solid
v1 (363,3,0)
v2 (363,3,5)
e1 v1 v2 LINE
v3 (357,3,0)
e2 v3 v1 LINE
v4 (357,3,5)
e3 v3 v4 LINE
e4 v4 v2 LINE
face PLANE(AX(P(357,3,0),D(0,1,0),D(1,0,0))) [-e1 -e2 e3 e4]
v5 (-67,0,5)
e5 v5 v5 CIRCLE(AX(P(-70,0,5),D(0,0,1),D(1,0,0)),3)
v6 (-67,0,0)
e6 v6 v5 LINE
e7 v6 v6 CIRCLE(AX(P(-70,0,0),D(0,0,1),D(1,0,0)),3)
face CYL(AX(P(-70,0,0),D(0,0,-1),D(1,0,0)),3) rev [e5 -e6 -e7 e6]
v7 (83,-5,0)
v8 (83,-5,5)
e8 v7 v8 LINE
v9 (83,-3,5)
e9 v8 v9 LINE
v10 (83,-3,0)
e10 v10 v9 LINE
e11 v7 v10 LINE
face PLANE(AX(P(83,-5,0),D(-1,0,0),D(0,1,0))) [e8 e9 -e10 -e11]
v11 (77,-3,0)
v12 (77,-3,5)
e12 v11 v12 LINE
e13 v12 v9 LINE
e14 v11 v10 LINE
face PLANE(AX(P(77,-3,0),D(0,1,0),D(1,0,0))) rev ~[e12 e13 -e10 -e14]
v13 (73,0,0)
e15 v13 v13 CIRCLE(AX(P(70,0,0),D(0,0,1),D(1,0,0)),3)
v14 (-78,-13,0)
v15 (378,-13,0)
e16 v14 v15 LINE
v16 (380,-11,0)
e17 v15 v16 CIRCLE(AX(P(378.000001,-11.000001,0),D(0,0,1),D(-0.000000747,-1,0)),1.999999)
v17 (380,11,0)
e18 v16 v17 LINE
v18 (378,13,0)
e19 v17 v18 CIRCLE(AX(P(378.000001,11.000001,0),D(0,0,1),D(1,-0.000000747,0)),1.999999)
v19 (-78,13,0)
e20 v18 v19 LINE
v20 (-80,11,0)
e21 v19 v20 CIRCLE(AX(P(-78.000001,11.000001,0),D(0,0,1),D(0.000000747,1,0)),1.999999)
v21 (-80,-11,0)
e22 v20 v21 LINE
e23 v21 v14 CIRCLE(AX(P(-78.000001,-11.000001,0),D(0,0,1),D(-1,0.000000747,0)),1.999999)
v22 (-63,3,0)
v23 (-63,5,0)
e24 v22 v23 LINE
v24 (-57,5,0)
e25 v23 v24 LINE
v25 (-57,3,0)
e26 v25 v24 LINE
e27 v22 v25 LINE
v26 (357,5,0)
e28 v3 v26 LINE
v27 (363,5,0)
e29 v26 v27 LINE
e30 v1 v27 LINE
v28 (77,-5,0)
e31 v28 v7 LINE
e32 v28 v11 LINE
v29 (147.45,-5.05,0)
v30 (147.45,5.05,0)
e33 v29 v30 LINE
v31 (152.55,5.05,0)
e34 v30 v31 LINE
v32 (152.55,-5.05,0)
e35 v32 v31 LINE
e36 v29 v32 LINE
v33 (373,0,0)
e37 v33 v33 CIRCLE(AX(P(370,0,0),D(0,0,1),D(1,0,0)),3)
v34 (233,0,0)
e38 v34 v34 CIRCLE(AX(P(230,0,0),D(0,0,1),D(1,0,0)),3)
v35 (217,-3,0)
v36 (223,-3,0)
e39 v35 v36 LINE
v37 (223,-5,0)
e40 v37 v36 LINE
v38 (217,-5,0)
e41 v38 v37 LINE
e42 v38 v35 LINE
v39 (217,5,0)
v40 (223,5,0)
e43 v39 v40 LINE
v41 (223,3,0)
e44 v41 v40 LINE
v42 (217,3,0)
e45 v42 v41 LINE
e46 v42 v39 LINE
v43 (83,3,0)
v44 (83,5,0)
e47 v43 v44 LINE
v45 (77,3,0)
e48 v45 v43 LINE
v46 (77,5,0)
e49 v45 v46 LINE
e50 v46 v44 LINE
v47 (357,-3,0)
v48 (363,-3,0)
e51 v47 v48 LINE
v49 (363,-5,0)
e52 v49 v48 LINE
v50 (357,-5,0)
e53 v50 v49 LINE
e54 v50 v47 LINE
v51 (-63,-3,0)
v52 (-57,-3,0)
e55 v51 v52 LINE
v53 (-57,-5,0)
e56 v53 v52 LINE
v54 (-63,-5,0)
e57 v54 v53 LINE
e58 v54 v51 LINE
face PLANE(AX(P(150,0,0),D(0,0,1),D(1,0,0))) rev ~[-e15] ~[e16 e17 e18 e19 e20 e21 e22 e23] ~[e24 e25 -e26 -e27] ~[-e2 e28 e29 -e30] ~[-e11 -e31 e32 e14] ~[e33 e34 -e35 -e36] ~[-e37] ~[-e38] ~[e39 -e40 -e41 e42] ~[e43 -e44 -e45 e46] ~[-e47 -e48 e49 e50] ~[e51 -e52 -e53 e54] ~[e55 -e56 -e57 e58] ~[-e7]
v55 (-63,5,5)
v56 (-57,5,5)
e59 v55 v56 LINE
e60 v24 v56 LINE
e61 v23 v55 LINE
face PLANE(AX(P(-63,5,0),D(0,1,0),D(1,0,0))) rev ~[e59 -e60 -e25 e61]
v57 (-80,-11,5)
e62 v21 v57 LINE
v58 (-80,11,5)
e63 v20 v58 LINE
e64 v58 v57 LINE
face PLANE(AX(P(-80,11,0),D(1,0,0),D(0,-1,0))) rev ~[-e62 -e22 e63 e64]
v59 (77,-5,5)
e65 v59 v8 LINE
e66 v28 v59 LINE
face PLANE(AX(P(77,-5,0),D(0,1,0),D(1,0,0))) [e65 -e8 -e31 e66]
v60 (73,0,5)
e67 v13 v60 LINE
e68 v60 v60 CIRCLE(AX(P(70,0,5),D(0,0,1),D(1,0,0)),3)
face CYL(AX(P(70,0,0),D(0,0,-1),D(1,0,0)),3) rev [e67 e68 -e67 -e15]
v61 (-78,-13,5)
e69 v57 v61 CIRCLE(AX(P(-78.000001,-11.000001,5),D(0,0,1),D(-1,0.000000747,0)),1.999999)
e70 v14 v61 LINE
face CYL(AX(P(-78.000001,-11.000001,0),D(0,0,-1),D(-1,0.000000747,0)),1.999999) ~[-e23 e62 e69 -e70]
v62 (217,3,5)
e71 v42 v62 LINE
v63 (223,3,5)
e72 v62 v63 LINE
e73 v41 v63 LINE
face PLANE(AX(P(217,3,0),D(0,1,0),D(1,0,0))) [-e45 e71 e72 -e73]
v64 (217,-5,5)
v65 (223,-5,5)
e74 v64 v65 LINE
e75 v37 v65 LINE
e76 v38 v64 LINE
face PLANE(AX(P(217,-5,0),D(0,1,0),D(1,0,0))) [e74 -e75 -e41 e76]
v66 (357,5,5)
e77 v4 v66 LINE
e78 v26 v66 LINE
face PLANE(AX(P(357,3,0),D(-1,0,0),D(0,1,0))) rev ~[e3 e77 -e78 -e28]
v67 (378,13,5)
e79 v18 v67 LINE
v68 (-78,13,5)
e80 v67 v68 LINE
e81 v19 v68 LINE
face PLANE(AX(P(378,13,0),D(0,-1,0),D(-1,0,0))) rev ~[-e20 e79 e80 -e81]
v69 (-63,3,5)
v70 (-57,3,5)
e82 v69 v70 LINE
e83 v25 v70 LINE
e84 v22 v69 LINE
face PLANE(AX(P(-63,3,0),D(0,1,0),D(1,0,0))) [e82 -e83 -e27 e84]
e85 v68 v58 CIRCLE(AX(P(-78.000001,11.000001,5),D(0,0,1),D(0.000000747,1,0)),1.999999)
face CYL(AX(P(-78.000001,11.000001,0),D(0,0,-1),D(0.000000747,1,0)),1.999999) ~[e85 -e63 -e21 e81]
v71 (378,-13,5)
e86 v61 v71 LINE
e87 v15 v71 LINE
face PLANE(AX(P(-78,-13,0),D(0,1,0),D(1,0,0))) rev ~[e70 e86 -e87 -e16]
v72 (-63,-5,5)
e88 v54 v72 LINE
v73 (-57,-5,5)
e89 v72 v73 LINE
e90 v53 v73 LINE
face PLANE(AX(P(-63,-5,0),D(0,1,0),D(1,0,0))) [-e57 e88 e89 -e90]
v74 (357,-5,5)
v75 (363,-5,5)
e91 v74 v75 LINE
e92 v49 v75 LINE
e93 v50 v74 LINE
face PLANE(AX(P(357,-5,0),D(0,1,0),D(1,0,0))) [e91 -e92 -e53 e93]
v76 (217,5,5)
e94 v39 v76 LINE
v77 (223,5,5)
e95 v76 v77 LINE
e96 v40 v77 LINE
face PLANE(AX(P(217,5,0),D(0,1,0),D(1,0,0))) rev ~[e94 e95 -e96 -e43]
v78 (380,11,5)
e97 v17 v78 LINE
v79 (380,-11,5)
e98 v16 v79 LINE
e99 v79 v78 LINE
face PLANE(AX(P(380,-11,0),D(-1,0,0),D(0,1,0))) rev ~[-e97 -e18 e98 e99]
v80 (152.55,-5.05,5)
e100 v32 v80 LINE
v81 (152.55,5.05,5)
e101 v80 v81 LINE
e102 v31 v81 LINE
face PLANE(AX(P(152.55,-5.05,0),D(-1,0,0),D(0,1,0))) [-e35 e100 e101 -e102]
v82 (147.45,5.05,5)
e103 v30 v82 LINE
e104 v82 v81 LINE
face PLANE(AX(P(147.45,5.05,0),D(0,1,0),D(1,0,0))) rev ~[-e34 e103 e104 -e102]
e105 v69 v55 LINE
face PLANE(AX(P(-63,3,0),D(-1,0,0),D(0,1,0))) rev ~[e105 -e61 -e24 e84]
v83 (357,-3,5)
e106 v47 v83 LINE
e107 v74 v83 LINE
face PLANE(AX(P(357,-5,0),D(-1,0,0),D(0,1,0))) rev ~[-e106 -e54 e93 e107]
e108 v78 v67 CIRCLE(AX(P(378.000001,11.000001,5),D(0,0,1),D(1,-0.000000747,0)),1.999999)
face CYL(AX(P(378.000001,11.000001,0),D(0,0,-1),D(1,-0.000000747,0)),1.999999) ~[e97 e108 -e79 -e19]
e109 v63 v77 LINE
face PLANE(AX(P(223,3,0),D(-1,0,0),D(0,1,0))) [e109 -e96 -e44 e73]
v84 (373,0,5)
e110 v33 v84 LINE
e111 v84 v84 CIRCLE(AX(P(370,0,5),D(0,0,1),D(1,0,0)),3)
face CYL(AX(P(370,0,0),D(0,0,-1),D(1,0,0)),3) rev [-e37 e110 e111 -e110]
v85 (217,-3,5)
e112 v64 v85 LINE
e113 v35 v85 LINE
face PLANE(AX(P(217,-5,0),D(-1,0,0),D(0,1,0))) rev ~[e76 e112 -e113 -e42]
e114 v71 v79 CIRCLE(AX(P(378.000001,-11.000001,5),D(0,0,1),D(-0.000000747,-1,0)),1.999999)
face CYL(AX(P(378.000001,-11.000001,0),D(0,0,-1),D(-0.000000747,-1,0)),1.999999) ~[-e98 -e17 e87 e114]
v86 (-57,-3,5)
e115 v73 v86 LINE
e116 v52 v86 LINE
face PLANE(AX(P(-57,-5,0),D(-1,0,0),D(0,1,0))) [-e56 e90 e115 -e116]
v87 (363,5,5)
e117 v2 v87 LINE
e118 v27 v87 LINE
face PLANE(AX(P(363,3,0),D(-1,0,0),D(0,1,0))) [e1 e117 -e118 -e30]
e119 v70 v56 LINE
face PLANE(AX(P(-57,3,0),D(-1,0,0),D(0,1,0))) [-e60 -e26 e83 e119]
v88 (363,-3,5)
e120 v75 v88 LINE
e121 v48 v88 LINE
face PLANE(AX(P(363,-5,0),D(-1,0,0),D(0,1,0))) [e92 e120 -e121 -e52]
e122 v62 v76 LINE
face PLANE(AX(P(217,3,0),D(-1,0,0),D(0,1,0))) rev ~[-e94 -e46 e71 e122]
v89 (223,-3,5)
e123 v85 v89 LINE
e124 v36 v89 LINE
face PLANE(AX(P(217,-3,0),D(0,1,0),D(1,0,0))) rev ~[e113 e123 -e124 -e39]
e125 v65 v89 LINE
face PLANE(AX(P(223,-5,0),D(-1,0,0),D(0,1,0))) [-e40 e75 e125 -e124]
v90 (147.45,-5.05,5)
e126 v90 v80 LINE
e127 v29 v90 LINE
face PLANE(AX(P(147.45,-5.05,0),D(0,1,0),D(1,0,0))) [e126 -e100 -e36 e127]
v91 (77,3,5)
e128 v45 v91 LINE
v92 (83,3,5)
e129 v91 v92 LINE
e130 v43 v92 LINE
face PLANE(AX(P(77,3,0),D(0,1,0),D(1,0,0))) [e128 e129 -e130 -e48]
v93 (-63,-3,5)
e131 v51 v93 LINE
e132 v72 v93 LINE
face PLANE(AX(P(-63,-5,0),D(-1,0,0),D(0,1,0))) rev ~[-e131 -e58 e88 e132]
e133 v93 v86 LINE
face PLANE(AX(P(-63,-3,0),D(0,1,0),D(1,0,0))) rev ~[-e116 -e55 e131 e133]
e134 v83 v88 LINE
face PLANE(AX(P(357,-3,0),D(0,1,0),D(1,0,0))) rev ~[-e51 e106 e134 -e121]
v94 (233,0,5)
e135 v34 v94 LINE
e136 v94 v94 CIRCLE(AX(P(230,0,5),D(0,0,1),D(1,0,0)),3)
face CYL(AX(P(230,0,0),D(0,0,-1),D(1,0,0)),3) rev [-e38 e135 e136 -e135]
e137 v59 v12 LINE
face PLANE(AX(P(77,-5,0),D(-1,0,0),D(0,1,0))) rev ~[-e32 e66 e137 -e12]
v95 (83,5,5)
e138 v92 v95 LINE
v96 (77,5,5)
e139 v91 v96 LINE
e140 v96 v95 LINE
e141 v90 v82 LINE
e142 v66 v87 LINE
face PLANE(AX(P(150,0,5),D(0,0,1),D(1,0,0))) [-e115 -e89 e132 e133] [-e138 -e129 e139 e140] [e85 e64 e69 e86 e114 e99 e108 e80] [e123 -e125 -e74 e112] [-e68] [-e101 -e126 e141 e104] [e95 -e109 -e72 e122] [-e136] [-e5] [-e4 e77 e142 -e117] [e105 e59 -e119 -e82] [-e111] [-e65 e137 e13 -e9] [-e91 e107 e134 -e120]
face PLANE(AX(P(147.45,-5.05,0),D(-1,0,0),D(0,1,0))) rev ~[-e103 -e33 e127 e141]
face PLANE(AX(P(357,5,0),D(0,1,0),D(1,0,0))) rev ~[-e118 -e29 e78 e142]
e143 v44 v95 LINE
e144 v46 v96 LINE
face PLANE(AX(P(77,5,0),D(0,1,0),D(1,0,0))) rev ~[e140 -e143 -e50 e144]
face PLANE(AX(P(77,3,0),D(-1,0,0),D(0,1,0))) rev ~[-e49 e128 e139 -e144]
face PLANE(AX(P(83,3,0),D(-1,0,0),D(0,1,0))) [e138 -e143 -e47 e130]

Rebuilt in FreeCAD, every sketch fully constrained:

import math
import FreeCAD as App
import Part
import Sketcher

V = App.Vector


def add_polygon(sketch, points):
    """Adds a closed chain of lines whose ends are joined by coincident constraints."""
    first, n = sketch.GeometryCount, len(points)
    for a, b in zip(points, points[1:] + points[:1]):
        sketch.addGeometry(Part.LineSegment(App.Vector(*a, 0), App.Vector(*b, 0)), False)
    for i in range(n):
        sketch.addConstraint(Sketcher.Constraint("Coincident", first + i, 2, first + (i + 1) % n, 1))

doc = App.newDocument("Part")
params = doc.addObject("Spreadsheet::Sheet", "Params")
for row, (alias, value) in enumerate([
    ("sketch1_diameter", "6 mm"),
    ("sketch1_radius", "1.999999 mm"),
    ("sketch1_width", "456 mm"),
    ("sketch1_width2", "6 mm"),
    ("sketch1_height", "22 mm"),
    ("pad1_length", "5 mm"),
], start=1):
    params.set(f"A{row}", alias)
    params.set(f"B{row}", "=" + value)
    params.setAlias(f"B{row}", alias)

body = doc.addObject("PartDesign::Body", "Body")

# Sketch on XY plane
sketch1 = body.newObject("Sketcher::SketchObject", "Sketch")
sketch1.AttachmentSupport = (doc.getObject("XY_Plane"), [""])
sketch1.MapMode = "FlatFace"
sketch1.addGeometry(Part.ArcOfCircle(Part.Circle(V(-78, -11, 0), V(0, 0, 1), 2), math.radians(180), math.radians(270)), False)  # 0
sketch1.addGeometry(Part.LineSegment(V(-78, -13, 0), V(378, -13, 0)), False)  # 1
sketch1.addGeometry(Part.ArcOfCircle(Part.Circle(V(378, -11, 0), V(0, 0, 1), 2), math.radians(-90), math.radians(0)), False)  # 2
sketch1.addGeometry(Part.LineSegment(V(380, -11, 0), V(380, 11, 0)), False)  # 3
sketch1.addGeometry(Part.ArcOfCircle(Part.Circle(V(378, 11, 0), V(0, 0, 1), 2), math.radians(0), math.radians(90)), False)  # 4
sketch1.addGeometry(Part.LineSegment(V(378, 13, 0), V(-78, 13, 0)), False)  # 5
sketch1.addGeometry(Part.ArcOfCircle(Part.Circle(V(-78, 11, 0), V(0, 0, 1), 2), math.radians(90), math.radians(180)), False)  # 6
sketch1.addGeometry(Part.LineSegment(V(-80, 11, 0), V(-80, -11, 0)), False)  # 7
add_polygon(sketch1, [(-57, -5), (-63, -5), (-63, -3), (-57, -3)])  # lines 8-11
add_polygon(sketch1, [(83, -5), (77, -5), (77, -3), (83, -3)])  # lines 12-15
add_polygon(sketch1, [(223, -5), (217, -5), (217, -3), (223, -3)])  # lines 16-19
add_polygon(sketch1, [(363, -5), (357, -5), (357, -3), (363, -3)])  # lines 20-23
sketch1.addGeometry(Part.Circle(V(-70, 0, 0), V(0, 0, 1), 3), False)  # 24
sketch1.addGeometry(Part.Circle(V(70, 0, 0), V(0, 0, 1), 3), False)  # 25
add_polygon(sketch1, [(-57, 3), (-63, 3), (-63, 5), (-57, 5)])  # lines 26-29
add_polygon(sketch1, [(83, 3), (77, 3), (77, 5), (83, 5)])  # lines 30-33
add_polygon(sketch1, [(152.6, -5), (147.4, -5), (147.4, 5), (152.6, 5)])  # lines 34-37
sketch1.addGeometry(Part.Circle(V(230, 0, 0), V(0, 0, 1), 3), False)  # 38
sketch1.addGeometry(Part.Circle(V(370, 0, 0), V(0, 0, 1), 3), False)  # 39
add_polygon(sketch1, [(223, 3), (217, 3), (217, 5), (223, 5)])  # lines 40-43
add_polygon(sketch1, [(363, 3), (357, 3), (357, 5), (363, 5)])  # lines 44-47
sketch1.addConstraint([
    Sketcher.Constraint("Tangent", 0, 2, 1, 1),
    Sketcher.Constraint("Tangent", 1, 2, 2, 1),
    Sketcher.Constraint("Tangent", 2, 2, 3, 1),
    Sketcher.Constraint("Tangent", 3, 2, 4, 1),
    Sketcher.Constraint("Tangent", 4, 2, 5, 1),
    Sketcher.Constraint("Tangent", 5, 2, 6, 1),
    Sketcher.Constraint("Tangent", 6, 2, 7, 1),
    Sketcher.Constraint("Tangent", 7, 2, 0, 1),
    Sketcher.Constraint("Horizontal", 1),
    Sketcher.Constraint("Vertical", 3),
    Sketcher.Constraint("Horizontal", 5),
    Sketcher.Constraint("Vertical", 7),
    Sketcher.Constraint("Horizontal", 8),
    Sketcher.Constraint("Vertical", 9),
    Sketcher.Constraint("Horizontal", 10),
    Sketcher.Constraint("Vertical", 11),
    Sketcher.Constraint("Horizontal", 12),
    Sketcher.Constraint("Vertical", 13),
    Sketcher.Constraint("Horizontal", 14),
    Sketcher.Constraint("Vertical", 15),
    Sketcher.Constraint("Horizontal", 16),
    Sketcher.Constraint("Vertical", 17),
    Sketcher.Constraint("Horizontal", 18),
    Sketcher.Constraint("Vertical", 19),
    Sketcher.Constraint("Horizontal", 20),
    Sketcher.Constraint("Vertical", 21),
    Sketcher.Constraint("Horizontal", 22),
    Sketcher.Constraint("Vertical", 23),
    Sketcher.Constraint("Horizontal", 26),
    Sketcher.Constraint("Vertical", 27),
    Sketcher.Constraint("Horizontal", 28),
    Sketcher.Constraint("Vertical", 29),
    Sketcher.Constraint("Horizontal", 30),
    Sketcher.Constraint("Vertical", 31),
    Sketcher.Constraint("Horizontal", 32),
    Sketcher.Constraint("Vertical", 33),
    Sketcher.Constraint("Horizontal", 34),
    Sketcher.Constraint("Vertical", 35),
    Sketcher.Constraint("Horizontal", 36),
    Sketcher.Constraint("Vertical", 37),
    Sketcher.Constraint("Horizontal", 40),
    Sketcher.Constraint("Vertical", 41),
    Sketcher.Constraint("Horizontal", 42),
    Sketcher.Constraint("Vertical", 43),
    Sketcher.Constraint("Horizontal", 44),
    Sketcher.Constraint("Vertical", 45),
    Sketcher.Constraint("Horizontal", 46),
    Sketcher.Constraint("Vertical", 47),
    Sketcher.Constraint("Equal", 0, 2),
    Sketcher.Constraint("Equal", 2, 4),
    Sketcher.Constraint("Equal", 4, 6),
    Sketcher.Constraint("Equal", 24, 25),
    Sketcher.Constraint("Equal", 25, 38),
    Sketcher.Constraint("Equal", 38, 39),
    Sketcher.Constraint("Symmetric", 24, 3, 25, 3, -1, 1),
    Sketcher.Constraint("Symmetric", 9, 2, 26, 2, -1),
    Sketcher.Constraint("Symmetric", 11, 2, 28, 2, -1),
    Sketcher.Constraint("Symmetric", 13, 2, 30, 2, -1),
    Sketcher.Constraint("Symmetric", 15, 2, 32, 2, -1),
    Sketcher.Constraint("Symmetric", 17, 2, 40, 2, -1),
    Sketcher.Constraint("Symmetric", 19, 2, 42, 2, -1),
    Sketcher.Constraint("Symmetric", 21, 2, 44, 2, -1),
    Sketcher.Constraint("Symmetric", 23, 2, 46, 2, -1),
    Sketcher.Constraint("PointOnObject", 24, 3, -1),
    Sketcher.Constraint("PointOnObject", 38, 3, -1),
    Sketcher.Constraint("PointOnObject", 39, 3, -1),
    Sketcher.Constraint("Horizontal", 11, 2, 12, 2),
    Sketcher.Constraint("Horizontal", 10, 2, 13, 2),
    Sketcher.Constraint("Horizontal", 15, 2, 16, 2),
    Sketcher.Constraint("Horizontal", 14, 2, 17, 2),
    Sketcher.Constraint("Horizontal", 19, 2, 20, 2),
    Sketcher.Constraint("Horizontal", 18, 2, 21, 2),
    Sketcher.Constraint("Equal", 10, 12),
    Sketcher.Constraint("Equal", 14, 16),
    Sketcher.Constraint("Equal", 18, 20),
    Sketcher.Constraint("Diameter", 24, 6.0),
    Sketcher.Constraint("Radius", 0, 1.999999),
    Sketcher.Constraint("DistanceX", 1, 1, 1, 2, 456.0),
    Sketcher.Constraint("DistanceX", 8, 2, 8, 1, 6.0),
    Sketcher.Constraint("DistanceY", 3, 1, 3, 2, 22.0),
    Sketcher.Constraint("DistanceY", 9, 1, 9, 2, 2.0),
    Sketcher.Constraint("DistanceX", 34, 2, 34, 1, 5.1),
    Sketcher.Constraint("DistanceY", 35, 1, 35, 2, 10.1),
    Sketcher.Constraint("DistanceX", 0, 3, -1, 1, 78.000001),
    Sketcher.Constraint("DistanceY", 0, 3, -1, 1, 11.000001),
    Sketcher.Constraint("DistanceX", 24, 3, -1, 1, 70.0),
    Sketcher.Constraint("DistanceX", -1, 1, 38, 3, 230.0),
    Sketcher.Constraint("DistanceX", -1, 1, 39, 3, 370.0),
    Sketcher.Constraint("DistanceX", 8, 2, -1, 1, 63.0),
    Sketcher.Constraint("DistanceY", 8, 2, -1, 1, 5.0),
    Sketcher.Constraint("DistanceX", -1, 1, 12, 2, 77.0),
    Sketcher.Constraint("DistanceX", -1, 1, 16, 2, 217.0),
    Sketcher.Constraint("DistanceX", -1, 1, 20, 2, 357.0),
    Sketcher.Constraint("DistanceX", -1, 1, 34, 2, 147.45),
    Sketcher.Constraint("DistanceY", 34, 2, -1, 1, 5.05),
])
sketch1.setExpression("Constraints[111]", "Params.sketch1_diameter")
sketch1.setExpression("Constraints[112]", "Params.sketch1_radius")
sketch1.setExpression("Constraints[113]", "Params.sketch1_width")
sketch1.setExpression("Constraints[114]", "Params.sketch1_width2")
sketch1.setExpression("Constraints[115]", "Params.sketch1_height")
pad1 = body.newObject("PartDesign::Pad", "Pad")
pad1.Profile = sketch1
pad1.setExpression("Length", "Params.pad1_length")

doc.recompute()
